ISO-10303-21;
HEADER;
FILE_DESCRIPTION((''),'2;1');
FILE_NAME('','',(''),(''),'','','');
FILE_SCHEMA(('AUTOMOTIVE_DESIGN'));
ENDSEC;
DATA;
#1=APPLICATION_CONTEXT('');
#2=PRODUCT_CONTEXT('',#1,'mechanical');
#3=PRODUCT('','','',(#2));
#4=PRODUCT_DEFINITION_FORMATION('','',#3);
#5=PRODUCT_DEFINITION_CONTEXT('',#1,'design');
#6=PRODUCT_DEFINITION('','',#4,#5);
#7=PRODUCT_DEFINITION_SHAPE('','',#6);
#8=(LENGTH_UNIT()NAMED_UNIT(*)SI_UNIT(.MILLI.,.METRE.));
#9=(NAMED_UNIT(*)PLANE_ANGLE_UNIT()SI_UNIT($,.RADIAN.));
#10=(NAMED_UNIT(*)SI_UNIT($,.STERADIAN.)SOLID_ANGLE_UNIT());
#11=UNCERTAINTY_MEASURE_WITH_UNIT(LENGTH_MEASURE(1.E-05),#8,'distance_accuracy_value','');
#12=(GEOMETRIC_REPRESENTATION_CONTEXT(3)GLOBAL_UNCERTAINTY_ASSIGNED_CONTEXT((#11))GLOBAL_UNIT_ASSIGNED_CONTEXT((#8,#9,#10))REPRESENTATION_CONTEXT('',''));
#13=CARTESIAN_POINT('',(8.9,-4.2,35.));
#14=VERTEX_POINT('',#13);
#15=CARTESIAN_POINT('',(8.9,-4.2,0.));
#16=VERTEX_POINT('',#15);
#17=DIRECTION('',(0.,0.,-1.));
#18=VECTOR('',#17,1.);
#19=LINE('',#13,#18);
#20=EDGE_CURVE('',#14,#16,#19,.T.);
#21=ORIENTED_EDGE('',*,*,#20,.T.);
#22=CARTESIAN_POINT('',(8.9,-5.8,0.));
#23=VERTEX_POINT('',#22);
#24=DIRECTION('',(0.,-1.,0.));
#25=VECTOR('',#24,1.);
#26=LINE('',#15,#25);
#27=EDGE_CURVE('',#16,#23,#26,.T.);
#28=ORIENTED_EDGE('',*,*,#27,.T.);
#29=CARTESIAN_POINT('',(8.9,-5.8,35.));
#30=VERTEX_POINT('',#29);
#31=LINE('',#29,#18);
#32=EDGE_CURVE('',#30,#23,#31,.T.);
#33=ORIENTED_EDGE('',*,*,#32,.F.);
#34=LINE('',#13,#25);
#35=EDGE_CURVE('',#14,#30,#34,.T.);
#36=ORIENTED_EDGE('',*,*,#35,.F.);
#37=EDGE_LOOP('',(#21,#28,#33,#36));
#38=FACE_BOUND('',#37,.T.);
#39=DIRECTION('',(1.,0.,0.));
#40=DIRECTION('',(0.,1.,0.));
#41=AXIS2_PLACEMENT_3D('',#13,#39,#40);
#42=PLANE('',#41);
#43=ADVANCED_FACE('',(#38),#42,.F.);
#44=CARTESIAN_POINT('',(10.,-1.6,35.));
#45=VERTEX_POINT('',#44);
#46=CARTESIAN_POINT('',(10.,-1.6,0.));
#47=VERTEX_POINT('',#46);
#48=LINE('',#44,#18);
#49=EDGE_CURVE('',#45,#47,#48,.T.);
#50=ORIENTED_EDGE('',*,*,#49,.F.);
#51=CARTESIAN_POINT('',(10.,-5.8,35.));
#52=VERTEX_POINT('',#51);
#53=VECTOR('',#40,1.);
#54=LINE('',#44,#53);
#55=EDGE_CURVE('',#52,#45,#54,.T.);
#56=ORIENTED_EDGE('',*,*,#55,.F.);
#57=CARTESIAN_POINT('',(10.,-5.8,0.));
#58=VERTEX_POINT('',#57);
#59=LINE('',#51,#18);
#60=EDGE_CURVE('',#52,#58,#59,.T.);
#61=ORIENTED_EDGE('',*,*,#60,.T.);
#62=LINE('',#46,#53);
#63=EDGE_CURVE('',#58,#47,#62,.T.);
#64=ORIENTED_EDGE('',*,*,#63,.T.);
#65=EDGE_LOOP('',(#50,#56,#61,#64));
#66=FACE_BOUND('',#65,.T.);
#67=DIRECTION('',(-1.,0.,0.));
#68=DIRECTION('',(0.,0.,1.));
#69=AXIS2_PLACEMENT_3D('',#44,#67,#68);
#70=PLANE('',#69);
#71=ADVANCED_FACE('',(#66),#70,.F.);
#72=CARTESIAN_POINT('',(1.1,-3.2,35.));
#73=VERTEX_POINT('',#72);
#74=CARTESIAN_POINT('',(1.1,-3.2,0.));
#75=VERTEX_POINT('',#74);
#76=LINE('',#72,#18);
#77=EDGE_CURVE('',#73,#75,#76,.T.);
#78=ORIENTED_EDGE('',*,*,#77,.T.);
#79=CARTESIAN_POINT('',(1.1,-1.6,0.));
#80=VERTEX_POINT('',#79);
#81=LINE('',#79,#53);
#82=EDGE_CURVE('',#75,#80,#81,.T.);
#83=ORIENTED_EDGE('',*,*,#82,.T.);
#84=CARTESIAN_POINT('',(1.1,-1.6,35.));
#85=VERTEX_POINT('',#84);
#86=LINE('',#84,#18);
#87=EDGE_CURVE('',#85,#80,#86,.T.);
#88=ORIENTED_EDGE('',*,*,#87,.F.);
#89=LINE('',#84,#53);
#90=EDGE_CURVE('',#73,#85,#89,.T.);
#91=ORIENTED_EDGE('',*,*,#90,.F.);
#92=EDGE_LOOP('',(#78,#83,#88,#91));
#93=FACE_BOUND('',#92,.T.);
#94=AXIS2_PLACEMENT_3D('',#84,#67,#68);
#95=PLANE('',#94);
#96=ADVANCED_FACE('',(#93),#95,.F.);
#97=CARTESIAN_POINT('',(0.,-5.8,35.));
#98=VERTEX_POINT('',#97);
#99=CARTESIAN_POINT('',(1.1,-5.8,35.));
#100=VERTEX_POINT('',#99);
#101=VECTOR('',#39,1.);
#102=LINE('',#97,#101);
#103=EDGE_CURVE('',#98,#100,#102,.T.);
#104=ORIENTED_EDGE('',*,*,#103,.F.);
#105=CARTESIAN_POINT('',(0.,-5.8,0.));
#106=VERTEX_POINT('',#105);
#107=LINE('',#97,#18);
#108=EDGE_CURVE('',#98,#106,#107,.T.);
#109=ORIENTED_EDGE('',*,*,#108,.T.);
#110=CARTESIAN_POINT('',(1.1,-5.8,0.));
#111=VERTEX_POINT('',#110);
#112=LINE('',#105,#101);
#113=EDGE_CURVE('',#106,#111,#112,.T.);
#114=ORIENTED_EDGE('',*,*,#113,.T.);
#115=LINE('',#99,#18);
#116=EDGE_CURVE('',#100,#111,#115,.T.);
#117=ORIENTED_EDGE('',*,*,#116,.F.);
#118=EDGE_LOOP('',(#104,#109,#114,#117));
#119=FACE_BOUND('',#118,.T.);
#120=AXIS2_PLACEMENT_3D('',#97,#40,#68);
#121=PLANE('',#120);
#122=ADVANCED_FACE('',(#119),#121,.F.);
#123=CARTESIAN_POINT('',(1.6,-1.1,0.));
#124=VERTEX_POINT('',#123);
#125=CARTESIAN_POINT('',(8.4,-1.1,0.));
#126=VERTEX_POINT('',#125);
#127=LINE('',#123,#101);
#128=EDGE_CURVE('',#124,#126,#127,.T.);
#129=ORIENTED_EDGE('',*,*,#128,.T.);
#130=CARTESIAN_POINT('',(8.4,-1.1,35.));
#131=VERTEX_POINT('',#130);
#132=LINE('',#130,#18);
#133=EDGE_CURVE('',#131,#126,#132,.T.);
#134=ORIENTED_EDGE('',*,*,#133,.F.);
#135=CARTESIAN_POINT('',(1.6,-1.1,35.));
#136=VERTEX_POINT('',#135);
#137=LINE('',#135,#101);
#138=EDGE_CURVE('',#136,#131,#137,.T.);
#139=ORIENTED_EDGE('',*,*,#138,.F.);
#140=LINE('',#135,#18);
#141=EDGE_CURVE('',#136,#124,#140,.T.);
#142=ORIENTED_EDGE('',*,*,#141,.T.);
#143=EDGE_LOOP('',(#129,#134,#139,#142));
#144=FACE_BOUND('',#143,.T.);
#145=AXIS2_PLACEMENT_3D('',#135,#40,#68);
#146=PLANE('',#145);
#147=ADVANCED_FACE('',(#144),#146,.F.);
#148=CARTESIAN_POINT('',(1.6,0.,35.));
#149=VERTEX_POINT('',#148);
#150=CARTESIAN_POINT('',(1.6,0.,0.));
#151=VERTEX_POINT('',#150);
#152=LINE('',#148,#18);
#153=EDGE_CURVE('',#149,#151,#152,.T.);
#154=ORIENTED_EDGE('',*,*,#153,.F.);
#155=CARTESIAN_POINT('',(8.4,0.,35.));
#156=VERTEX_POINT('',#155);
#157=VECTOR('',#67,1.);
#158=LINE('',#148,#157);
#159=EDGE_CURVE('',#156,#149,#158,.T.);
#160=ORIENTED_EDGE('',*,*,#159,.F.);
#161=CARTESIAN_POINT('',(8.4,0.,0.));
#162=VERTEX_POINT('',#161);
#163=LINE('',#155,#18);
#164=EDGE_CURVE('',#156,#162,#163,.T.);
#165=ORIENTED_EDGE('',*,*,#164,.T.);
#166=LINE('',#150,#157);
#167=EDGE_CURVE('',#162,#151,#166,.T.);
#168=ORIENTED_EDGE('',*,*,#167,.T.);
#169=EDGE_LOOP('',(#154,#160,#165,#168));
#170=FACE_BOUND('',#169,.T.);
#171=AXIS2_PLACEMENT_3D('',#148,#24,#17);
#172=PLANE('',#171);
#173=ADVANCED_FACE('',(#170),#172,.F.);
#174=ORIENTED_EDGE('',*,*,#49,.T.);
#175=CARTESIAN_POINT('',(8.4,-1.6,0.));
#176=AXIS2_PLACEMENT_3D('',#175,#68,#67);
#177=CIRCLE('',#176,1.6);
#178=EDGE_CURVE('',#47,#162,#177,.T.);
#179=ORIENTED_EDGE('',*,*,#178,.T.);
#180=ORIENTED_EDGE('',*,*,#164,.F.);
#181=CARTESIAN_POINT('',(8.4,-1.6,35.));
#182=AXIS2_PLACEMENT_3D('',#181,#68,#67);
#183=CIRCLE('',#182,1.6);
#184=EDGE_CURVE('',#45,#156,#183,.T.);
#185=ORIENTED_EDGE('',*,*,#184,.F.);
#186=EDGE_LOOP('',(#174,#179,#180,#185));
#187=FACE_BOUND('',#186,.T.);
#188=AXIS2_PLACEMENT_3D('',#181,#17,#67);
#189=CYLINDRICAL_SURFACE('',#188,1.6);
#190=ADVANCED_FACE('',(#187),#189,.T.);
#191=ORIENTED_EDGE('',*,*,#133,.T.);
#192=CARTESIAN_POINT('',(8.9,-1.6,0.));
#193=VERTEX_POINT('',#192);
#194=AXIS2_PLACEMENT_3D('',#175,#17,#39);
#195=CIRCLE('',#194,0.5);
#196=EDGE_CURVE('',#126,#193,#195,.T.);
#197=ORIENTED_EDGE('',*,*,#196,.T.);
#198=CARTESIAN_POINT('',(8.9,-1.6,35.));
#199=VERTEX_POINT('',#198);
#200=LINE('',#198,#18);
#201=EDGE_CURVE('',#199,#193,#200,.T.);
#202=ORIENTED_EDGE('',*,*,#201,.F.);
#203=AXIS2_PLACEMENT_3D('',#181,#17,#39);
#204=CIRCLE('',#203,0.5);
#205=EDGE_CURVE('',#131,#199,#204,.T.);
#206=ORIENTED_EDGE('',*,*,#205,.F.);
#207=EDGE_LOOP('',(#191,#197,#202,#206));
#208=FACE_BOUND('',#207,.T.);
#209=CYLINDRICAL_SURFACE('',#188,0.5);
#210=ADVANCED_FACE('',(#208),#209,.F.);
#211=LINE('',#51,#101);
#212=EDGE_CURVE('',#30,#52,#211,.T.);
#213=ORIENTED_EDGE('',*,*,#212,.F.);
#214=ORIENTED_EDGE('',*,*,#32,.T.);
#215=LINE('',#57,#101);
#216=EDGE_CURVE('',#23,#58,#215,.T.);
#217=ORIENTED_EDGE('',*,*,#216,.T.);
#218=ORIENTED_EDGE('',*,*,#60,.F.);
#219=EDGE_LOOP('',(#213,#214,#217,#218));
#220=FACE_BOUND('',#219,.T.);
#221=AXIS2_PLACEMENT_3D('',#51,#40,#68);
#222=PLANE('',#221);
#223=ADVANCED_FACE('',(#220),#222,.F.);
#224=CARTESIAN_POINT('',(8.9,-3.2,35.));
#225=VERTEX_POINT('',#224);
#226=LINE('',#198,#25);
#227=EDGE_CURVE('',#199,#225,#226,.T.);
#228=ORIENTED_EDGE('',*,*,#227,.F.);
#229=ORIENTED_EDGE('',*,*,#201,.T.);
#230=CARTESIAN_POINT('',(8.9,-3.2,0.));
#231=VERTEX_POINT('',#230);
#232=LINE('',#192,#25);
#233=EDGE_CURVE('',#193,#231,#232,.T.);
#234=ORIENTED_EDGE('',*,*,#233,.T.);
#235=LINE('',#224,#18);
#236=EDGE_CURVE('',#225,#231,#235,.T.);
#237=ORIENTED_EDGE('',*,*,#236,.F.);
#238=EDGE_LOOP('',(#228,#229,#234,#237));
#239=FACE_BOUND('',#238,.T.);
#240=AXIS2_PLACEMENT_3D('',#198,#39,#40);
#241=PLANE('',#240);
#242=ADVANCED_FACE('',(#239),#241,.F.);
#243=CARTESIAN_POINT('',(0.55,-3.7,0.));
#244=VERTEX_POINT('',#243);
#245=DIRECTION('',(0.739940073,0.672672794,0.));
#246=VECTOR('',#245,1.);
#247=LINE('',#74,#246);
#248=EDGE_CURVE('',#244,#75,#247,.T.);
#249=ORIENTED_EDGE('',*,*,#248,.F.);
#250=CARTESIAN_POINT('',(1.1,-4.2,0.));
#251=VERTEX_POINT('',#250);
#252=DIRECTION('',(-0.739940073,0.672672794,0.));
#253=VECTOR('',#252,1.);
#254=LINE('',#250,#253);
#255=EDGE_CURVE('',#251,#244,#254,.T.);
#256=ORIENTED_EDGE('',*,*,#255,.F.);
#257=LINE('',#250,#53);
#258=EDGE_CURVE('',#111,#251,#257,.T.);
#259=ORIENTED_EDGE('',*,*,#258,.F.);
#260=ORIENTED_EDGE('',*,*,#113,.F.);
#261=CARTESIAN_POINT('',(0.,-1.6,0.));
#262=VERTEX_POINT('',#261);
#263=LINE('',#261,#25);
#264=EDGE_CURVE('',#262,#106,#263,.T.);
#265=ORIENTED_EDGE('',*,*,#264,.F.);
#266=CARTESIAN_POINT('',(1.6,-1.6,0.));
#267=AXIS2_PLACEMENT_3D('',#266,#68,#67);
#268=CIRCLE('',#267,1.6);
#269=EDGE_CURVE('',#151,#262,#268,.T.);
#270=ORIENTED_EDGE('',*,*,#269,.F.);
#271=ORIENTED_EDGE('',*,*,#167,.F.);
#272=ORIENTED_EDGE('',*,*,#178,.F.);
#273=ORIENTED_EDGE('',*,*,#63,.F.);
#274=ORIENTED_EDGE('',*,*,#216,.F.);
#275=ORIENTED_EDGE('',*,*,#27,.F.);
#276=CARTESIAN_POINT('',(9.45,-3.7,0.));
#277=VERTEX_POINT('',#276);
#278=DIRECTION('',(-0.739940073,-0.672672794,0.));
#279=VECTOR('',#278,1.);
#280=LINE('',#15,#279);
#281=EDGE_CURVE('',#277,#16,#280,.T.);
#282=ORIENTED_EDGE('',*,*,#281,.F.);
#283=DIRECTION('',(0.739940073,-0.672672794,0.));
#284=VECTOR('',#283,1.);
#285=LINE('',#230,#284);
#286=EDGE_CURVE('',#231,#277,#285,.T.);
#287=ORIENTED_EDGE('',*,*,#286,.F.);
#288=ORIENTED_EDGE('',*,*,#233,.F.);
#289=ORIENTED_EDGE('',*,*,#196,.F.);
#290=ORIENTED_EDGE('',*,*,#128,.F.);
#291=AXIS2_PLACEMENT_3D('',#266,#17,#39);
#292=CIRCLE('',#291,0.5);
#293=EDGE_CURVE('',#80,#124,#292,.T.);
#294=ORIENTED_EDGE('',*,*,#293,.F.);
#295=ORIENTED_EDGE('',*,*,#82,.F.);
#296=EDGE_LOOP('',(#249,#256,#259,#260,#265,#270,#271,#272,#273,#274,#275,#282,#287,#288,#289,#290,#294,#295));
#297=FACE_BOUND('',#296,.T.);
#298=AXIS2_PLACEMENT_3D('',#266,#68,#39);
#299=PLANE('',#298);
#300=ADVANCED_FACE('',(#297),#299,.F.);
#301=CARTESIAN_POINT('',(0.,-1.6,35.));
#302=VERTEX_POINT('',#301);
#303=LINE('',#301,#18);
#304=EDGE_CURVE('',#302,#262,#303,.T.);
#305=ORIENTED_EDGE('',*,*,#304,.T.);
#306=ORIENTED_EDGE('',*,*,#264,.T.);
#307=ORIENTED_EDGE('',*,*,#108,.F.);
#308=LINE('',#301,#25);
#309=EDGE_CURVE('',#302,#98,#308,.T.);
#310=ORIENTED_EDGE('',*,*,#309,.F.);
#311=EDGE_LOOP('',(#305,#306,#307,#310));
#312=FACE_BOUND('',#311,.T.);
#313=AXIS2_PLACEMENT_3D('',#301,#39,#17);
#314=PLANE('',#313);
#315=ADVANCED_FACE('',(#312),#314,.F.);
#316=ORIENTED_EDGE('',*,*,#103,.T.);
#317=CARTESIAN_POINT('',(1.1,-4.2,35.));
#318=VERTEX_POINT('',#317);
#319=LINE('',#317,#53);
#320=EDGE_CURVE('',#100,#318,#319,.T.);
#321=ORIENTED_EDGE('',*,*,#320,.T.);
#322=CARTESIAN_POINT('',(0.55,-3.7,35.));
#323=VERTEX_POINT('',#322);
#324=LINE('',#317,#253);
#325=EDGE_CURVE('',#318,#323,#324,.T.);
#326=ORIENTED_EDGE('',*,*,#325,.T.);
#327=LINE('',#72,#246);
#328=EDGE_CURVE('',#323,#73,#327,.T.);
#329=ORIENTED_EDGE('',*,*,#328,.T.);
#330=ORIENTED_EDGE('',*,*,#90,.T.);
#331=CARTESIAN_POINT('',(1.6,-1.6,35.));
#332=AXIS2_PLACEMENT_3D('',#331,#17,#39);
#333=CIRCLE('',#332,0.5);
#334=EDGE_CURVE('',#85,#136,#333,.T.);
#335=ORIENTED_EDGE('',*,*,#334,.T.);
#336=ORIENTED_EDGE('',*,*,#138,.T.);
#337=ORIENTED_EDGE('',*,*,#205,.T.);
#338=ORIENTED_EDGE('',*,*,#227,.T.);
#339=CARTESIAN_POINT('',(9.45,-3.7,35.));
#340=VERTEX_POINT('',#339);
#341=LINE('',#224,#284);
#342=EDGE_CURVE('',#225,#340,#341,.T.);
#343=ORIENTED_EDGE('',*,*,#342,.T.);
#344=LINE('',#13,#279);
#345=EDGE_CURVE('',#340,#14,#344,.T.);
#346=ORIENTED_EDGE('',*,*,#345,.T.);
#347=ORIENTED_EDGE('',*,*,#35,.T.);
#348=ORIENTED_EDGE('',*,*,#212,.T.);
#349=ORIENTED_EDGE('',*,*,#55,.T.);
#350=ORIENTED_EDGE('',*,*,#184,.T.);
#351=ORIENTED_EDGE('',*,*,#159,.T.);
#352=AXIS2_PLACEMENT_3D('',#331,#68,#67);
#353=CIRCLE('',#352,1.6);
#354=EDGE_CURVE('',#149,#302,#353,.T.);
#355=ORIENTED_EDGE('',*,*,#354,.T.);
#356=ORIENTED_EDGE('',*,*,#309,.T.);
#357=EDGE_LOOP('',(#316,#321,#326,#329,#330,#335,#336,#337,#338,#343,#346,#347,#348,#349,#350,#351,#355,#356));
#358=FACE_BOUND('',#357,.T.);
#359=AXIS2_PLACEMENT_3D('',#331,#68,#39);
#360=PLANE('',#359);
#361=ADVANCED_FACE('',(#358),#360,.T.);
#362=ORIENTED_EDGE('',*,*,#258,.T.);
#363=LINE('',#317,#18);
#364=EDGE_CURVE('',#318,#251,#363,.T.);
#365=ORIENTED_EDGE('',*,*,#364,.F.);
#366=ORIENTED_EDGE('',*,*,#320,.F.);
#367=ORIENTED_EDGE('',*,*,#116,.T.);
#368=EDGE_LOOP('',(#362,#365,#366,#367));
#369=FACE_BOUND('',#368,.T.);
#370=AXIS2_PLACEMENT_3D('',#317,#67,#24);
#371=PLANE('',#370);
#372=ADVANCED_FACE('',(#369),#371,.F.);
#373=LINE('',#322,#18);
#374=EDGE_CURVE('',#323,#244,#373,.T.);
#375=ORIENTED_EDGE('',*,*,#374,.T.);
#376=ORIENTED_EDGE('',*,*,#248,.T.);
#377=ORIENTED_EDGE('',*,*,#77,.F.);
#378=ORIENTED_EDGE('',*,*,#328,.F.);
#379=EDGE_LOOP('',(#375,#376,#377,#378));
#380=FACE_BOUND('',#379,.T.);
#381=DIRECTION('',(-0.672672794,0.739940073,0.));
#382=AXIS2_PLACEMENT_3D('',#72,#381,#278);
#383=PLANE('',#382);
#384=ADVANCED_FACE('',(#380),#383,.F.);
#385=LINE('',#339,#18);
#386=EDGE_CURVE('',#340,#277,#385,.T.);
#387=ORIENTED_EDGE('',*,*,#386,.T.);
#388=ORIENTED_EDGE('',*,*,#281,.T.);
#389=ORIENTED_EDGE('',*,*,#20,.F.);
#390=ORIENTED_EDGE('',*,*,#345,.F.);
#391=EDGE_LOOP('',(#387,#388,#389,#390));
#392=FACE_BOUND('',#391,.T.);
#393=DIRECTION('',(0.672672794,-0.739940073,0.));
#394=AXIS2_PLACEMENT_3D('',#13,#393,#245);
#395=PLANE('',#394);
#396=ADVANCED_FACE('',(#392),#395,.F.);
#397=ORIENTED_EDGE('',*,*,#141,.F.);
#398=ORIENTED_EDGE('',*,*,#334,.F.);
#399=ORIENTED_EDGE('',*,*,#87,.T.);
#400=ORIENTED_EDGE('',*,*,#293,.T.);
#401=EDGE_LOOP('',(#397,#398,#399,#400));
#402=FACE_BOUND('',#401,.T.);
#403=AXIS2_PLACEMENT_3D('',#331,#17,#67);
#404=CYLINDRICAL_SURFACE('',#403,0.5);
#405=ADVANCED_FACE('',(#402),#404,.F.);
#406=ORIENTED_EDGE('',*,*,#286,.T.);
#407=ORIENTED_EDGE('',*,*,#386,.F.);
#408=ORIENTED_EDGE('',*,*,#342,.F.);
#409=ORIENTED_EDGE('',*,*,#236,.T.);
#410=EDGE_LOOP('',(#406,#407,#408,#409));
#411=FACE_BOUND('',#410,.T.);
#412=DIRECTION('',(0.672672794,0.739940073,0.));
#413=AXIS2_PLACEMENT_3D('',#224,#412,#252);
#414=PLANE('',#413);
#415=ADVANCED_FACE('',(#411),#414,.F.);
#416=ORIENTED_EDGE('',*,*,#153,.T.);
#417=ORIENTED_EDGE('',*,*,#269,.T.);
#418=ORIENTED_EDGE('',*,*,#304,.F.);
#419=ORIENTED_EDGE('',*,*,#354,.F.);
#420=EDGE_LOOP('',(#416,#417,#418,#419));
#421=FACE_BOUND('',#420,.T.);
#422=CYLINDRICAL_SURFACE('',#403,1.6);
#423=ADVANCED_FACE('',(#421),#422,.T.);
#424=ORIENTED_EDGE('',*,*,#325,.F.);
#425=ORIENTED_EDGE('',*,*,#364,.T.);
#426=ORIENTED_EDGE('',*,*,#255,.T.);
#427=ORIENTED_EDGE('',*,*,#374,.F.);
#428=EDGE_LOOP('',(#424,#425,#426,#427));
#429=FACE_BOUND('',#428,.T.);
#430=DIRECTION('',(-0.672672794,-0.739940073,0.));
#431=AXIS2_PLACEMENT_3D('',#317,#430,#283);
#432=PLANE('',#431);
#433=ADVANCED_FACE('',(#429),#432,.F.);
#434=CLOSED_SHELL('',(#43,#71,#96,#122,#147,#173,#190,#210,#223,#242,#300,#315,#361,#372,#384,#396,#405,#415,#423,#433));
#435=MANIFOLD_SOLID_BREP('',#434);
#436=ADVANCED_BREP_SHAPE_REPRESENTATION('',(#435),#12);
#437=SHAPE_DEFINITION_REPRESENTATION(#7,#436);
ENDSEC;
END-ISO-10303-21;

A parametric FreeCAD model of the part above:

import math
import FreeCAD as App
import Part
import Sketcher

V = App.Vector

doc = App.newDocument("Part")
body = doc.addObject("PartDesign::Body", "Body")

sketch1 = doc.addObject("Sketcher::SketchObject", "Sketch")
body.addObject(sketch1)
sketch1.AttachmentSupport = (doc.XY_Plane, [""])
sketch1.MapMode = "FlatFace"
sketch1.addGeometry([
    Part.LineSegment(V(8.4, 0, 0), V(1.6, 0, 0)),
    Part.ArcOfCircle(Part.Circle(V(1.6, -1.6, 0), V(0, 0, 1), 1.6), math.radians(90), math.radians(180)),
    Part.LineSegment(V(0, -1.6, 0), V(0, -5.8, 0)),
    Part.LineSegment(V(0, -5.8, 0), V(1.1, -5.8, 0)),
    Part.LineSegment(V(1.1, -5.8, 0), V(1.1, -4.2, 0)),
    Part.LineSegment(V(1.1, -4.2, 0), V(0.55, -3.7, 0)),
    Part.LineSegment(V(0.55, -3.7, 0), V(1.1, -3.2, 0)),
    Part.LineSegment(V(1.1, -3.2, 0), V(1.1, -1.6, 0)),
    Part.ArcOfCircle(Part.Circle(V(1.6, -1.6, 0), V(0, 0, 1), 0.5), math.radians(90), math.radians(180)),
    Part.LineSegment(V(1.6, -1.1, 0), V(8.4, -1.1, 0)),
    Part.ArcOfCircle(Part.Circle(V(8.4, -1.6, 0), V(0, 0, 1), 0.5), math.radians(0), math.radians(90)),
    Part.LineSegment(V(8.9, -1.6, 0), V(8.9, -3.2, 0)),
    Part.LineSegment(V(8.9, -3.2, 0), V(9.45, -3.7, 0)),
    Part.LineSegment(V(9.45, -3.7, 0), V(8.9, -4.2, 0)),
    Part.LineSegment(V(8.9, -4.2, 0), V(8.9, -5.8, 0)),
    Part.LineSegment(V(8.9, -5.8, 0), V(10, -5.8, 0)),
    Part.LineSegment(V(10, -5.8, 0), V(10, -1.6, 0)),
    Part.ArcOfCircle(Part.Circle(V(8.4, -1.6, 0), V(0, 0, 1), 1.6), math.radians(0), math.radians(90)),
], False)
sketch1.addConstraint([
    Sketcher.Constraint("Tangent", 0, 2, 1, 1),
    Sketcher.Constraint("Tangent", 1, 2, 2, 1),
    Sketcher.Constraint("Coincident", 2, 2, 3, 1),
    Sketcher.Constraint("Coincident", 3, 2, 4, 1),
    Sketcher.Constraint("Coincident", 4, 2, 5, 1),
    Sketcher.Constraint("Coincident", 5, 2, 6, 1),
    Sketcher.Constraint("Coincident", 6, 2, 7, 1),
    Sketcher.Constraint("Tangent", 7, 2, 8, 2),
    Sketcher.Constraint("Tangent", 8, 1, 9, 1),
    Sketcher.Constraint("Tangent", 9, 2, 10, 2),
    Sketcher.Constraint("Tangent", 10, 1, 11, 1),
    Sketcher.Constraint("Coincident", 11, 2, 12, 1),
    Sketcher.Constraint("Coincident", 12, 2, 13, 1),
    Sketcher.Constraint("Coincident", 13, 2, 14, 1),
    Sketcher.Constraint("Coincident", 14, 2, 15, 1),
    Sketcher.Constraint("Coincident", 15, 2, 16, 1),
    Sketcher.Constraint("Tangent", 16, 2, 17, 1),
    Sketcher.Constraint("Tangent", 17, 2, 0, 1),
    Sketcher.Constraint("Horizontal", 0),
    Sketcher.Constraint("Vertical", 2),
    Sketcher.Constraint("Horizontal", 3),
    Sketcher.Constraint("Vertical", 4),
    Sketcher.Constraint("Vertical", 7),
    Sketcher.Constraint("Horizontal", 9),
    Sketcher.Constraint("Vertical", 11),
    Sketcher.Constraint("Vertical", 14),
    Sketcher.Constraint("Horizontal", 15),
    Sketcher.Constraint("Vertical", 16),
    Sketcher.Constraint("Coincident", 8, 3, 1, 3),
    Sketcher.Constraint("Coincident", 17, 3, 10, 3),
    Sketcher.Constraint("Equal", 8, 10),
    Sketcher.Constraint("PointOnObject", 0, 2, -1),
    Sketcher.Constraint("PointOnObject", 1, 2, -2),
    Sketcher.Constraint("Parallel", 5, 12),
    Sketcher.Constraint("Parallel", 6, 13),
    Sketcher.Constraint("Horizontal", 6, 2, 11, 2),
    Sketcher.Constraint("Horizontal", 5, 2, 12, 2),
    Sketcher.Constraint("Horizontal", 4, 2, 13, 2),
    Sketcher.Constraint("Horizontal", 3, 2, 14, 2),
    Sketcher.Constraint("Vertical", 4, 2, 6, 2),
    Sketcher.Constraint("Vertical", 11, 2, 13, 2),
    Sketcher.Constraint("Equal", 4, 7),
    Sketcher.Constraint("Radius", 1, 1.6),
    Sketcher.Constraint("Radius", 8, 0.5),
    Sketcher.Constraint("DistanceX", 0, 2, 0, 1, 6.8),
    Sketcher.Constraint("DistanceY", 2, 2, 2, 1, 4.2),
    Sketcher.Constraint("DistanceY", 4, 1, 4, 2, 1.6),
    Sketcher.Constraint("DistanceX", -1, 1, 5, 2, 0.55),
])
pad1 = doc.addObject("PartDesign::Pad", "Pad")
body.addObject(pad1)
pad1.Profile = sketch1
pad1.Length = 35

doc.recompute()
